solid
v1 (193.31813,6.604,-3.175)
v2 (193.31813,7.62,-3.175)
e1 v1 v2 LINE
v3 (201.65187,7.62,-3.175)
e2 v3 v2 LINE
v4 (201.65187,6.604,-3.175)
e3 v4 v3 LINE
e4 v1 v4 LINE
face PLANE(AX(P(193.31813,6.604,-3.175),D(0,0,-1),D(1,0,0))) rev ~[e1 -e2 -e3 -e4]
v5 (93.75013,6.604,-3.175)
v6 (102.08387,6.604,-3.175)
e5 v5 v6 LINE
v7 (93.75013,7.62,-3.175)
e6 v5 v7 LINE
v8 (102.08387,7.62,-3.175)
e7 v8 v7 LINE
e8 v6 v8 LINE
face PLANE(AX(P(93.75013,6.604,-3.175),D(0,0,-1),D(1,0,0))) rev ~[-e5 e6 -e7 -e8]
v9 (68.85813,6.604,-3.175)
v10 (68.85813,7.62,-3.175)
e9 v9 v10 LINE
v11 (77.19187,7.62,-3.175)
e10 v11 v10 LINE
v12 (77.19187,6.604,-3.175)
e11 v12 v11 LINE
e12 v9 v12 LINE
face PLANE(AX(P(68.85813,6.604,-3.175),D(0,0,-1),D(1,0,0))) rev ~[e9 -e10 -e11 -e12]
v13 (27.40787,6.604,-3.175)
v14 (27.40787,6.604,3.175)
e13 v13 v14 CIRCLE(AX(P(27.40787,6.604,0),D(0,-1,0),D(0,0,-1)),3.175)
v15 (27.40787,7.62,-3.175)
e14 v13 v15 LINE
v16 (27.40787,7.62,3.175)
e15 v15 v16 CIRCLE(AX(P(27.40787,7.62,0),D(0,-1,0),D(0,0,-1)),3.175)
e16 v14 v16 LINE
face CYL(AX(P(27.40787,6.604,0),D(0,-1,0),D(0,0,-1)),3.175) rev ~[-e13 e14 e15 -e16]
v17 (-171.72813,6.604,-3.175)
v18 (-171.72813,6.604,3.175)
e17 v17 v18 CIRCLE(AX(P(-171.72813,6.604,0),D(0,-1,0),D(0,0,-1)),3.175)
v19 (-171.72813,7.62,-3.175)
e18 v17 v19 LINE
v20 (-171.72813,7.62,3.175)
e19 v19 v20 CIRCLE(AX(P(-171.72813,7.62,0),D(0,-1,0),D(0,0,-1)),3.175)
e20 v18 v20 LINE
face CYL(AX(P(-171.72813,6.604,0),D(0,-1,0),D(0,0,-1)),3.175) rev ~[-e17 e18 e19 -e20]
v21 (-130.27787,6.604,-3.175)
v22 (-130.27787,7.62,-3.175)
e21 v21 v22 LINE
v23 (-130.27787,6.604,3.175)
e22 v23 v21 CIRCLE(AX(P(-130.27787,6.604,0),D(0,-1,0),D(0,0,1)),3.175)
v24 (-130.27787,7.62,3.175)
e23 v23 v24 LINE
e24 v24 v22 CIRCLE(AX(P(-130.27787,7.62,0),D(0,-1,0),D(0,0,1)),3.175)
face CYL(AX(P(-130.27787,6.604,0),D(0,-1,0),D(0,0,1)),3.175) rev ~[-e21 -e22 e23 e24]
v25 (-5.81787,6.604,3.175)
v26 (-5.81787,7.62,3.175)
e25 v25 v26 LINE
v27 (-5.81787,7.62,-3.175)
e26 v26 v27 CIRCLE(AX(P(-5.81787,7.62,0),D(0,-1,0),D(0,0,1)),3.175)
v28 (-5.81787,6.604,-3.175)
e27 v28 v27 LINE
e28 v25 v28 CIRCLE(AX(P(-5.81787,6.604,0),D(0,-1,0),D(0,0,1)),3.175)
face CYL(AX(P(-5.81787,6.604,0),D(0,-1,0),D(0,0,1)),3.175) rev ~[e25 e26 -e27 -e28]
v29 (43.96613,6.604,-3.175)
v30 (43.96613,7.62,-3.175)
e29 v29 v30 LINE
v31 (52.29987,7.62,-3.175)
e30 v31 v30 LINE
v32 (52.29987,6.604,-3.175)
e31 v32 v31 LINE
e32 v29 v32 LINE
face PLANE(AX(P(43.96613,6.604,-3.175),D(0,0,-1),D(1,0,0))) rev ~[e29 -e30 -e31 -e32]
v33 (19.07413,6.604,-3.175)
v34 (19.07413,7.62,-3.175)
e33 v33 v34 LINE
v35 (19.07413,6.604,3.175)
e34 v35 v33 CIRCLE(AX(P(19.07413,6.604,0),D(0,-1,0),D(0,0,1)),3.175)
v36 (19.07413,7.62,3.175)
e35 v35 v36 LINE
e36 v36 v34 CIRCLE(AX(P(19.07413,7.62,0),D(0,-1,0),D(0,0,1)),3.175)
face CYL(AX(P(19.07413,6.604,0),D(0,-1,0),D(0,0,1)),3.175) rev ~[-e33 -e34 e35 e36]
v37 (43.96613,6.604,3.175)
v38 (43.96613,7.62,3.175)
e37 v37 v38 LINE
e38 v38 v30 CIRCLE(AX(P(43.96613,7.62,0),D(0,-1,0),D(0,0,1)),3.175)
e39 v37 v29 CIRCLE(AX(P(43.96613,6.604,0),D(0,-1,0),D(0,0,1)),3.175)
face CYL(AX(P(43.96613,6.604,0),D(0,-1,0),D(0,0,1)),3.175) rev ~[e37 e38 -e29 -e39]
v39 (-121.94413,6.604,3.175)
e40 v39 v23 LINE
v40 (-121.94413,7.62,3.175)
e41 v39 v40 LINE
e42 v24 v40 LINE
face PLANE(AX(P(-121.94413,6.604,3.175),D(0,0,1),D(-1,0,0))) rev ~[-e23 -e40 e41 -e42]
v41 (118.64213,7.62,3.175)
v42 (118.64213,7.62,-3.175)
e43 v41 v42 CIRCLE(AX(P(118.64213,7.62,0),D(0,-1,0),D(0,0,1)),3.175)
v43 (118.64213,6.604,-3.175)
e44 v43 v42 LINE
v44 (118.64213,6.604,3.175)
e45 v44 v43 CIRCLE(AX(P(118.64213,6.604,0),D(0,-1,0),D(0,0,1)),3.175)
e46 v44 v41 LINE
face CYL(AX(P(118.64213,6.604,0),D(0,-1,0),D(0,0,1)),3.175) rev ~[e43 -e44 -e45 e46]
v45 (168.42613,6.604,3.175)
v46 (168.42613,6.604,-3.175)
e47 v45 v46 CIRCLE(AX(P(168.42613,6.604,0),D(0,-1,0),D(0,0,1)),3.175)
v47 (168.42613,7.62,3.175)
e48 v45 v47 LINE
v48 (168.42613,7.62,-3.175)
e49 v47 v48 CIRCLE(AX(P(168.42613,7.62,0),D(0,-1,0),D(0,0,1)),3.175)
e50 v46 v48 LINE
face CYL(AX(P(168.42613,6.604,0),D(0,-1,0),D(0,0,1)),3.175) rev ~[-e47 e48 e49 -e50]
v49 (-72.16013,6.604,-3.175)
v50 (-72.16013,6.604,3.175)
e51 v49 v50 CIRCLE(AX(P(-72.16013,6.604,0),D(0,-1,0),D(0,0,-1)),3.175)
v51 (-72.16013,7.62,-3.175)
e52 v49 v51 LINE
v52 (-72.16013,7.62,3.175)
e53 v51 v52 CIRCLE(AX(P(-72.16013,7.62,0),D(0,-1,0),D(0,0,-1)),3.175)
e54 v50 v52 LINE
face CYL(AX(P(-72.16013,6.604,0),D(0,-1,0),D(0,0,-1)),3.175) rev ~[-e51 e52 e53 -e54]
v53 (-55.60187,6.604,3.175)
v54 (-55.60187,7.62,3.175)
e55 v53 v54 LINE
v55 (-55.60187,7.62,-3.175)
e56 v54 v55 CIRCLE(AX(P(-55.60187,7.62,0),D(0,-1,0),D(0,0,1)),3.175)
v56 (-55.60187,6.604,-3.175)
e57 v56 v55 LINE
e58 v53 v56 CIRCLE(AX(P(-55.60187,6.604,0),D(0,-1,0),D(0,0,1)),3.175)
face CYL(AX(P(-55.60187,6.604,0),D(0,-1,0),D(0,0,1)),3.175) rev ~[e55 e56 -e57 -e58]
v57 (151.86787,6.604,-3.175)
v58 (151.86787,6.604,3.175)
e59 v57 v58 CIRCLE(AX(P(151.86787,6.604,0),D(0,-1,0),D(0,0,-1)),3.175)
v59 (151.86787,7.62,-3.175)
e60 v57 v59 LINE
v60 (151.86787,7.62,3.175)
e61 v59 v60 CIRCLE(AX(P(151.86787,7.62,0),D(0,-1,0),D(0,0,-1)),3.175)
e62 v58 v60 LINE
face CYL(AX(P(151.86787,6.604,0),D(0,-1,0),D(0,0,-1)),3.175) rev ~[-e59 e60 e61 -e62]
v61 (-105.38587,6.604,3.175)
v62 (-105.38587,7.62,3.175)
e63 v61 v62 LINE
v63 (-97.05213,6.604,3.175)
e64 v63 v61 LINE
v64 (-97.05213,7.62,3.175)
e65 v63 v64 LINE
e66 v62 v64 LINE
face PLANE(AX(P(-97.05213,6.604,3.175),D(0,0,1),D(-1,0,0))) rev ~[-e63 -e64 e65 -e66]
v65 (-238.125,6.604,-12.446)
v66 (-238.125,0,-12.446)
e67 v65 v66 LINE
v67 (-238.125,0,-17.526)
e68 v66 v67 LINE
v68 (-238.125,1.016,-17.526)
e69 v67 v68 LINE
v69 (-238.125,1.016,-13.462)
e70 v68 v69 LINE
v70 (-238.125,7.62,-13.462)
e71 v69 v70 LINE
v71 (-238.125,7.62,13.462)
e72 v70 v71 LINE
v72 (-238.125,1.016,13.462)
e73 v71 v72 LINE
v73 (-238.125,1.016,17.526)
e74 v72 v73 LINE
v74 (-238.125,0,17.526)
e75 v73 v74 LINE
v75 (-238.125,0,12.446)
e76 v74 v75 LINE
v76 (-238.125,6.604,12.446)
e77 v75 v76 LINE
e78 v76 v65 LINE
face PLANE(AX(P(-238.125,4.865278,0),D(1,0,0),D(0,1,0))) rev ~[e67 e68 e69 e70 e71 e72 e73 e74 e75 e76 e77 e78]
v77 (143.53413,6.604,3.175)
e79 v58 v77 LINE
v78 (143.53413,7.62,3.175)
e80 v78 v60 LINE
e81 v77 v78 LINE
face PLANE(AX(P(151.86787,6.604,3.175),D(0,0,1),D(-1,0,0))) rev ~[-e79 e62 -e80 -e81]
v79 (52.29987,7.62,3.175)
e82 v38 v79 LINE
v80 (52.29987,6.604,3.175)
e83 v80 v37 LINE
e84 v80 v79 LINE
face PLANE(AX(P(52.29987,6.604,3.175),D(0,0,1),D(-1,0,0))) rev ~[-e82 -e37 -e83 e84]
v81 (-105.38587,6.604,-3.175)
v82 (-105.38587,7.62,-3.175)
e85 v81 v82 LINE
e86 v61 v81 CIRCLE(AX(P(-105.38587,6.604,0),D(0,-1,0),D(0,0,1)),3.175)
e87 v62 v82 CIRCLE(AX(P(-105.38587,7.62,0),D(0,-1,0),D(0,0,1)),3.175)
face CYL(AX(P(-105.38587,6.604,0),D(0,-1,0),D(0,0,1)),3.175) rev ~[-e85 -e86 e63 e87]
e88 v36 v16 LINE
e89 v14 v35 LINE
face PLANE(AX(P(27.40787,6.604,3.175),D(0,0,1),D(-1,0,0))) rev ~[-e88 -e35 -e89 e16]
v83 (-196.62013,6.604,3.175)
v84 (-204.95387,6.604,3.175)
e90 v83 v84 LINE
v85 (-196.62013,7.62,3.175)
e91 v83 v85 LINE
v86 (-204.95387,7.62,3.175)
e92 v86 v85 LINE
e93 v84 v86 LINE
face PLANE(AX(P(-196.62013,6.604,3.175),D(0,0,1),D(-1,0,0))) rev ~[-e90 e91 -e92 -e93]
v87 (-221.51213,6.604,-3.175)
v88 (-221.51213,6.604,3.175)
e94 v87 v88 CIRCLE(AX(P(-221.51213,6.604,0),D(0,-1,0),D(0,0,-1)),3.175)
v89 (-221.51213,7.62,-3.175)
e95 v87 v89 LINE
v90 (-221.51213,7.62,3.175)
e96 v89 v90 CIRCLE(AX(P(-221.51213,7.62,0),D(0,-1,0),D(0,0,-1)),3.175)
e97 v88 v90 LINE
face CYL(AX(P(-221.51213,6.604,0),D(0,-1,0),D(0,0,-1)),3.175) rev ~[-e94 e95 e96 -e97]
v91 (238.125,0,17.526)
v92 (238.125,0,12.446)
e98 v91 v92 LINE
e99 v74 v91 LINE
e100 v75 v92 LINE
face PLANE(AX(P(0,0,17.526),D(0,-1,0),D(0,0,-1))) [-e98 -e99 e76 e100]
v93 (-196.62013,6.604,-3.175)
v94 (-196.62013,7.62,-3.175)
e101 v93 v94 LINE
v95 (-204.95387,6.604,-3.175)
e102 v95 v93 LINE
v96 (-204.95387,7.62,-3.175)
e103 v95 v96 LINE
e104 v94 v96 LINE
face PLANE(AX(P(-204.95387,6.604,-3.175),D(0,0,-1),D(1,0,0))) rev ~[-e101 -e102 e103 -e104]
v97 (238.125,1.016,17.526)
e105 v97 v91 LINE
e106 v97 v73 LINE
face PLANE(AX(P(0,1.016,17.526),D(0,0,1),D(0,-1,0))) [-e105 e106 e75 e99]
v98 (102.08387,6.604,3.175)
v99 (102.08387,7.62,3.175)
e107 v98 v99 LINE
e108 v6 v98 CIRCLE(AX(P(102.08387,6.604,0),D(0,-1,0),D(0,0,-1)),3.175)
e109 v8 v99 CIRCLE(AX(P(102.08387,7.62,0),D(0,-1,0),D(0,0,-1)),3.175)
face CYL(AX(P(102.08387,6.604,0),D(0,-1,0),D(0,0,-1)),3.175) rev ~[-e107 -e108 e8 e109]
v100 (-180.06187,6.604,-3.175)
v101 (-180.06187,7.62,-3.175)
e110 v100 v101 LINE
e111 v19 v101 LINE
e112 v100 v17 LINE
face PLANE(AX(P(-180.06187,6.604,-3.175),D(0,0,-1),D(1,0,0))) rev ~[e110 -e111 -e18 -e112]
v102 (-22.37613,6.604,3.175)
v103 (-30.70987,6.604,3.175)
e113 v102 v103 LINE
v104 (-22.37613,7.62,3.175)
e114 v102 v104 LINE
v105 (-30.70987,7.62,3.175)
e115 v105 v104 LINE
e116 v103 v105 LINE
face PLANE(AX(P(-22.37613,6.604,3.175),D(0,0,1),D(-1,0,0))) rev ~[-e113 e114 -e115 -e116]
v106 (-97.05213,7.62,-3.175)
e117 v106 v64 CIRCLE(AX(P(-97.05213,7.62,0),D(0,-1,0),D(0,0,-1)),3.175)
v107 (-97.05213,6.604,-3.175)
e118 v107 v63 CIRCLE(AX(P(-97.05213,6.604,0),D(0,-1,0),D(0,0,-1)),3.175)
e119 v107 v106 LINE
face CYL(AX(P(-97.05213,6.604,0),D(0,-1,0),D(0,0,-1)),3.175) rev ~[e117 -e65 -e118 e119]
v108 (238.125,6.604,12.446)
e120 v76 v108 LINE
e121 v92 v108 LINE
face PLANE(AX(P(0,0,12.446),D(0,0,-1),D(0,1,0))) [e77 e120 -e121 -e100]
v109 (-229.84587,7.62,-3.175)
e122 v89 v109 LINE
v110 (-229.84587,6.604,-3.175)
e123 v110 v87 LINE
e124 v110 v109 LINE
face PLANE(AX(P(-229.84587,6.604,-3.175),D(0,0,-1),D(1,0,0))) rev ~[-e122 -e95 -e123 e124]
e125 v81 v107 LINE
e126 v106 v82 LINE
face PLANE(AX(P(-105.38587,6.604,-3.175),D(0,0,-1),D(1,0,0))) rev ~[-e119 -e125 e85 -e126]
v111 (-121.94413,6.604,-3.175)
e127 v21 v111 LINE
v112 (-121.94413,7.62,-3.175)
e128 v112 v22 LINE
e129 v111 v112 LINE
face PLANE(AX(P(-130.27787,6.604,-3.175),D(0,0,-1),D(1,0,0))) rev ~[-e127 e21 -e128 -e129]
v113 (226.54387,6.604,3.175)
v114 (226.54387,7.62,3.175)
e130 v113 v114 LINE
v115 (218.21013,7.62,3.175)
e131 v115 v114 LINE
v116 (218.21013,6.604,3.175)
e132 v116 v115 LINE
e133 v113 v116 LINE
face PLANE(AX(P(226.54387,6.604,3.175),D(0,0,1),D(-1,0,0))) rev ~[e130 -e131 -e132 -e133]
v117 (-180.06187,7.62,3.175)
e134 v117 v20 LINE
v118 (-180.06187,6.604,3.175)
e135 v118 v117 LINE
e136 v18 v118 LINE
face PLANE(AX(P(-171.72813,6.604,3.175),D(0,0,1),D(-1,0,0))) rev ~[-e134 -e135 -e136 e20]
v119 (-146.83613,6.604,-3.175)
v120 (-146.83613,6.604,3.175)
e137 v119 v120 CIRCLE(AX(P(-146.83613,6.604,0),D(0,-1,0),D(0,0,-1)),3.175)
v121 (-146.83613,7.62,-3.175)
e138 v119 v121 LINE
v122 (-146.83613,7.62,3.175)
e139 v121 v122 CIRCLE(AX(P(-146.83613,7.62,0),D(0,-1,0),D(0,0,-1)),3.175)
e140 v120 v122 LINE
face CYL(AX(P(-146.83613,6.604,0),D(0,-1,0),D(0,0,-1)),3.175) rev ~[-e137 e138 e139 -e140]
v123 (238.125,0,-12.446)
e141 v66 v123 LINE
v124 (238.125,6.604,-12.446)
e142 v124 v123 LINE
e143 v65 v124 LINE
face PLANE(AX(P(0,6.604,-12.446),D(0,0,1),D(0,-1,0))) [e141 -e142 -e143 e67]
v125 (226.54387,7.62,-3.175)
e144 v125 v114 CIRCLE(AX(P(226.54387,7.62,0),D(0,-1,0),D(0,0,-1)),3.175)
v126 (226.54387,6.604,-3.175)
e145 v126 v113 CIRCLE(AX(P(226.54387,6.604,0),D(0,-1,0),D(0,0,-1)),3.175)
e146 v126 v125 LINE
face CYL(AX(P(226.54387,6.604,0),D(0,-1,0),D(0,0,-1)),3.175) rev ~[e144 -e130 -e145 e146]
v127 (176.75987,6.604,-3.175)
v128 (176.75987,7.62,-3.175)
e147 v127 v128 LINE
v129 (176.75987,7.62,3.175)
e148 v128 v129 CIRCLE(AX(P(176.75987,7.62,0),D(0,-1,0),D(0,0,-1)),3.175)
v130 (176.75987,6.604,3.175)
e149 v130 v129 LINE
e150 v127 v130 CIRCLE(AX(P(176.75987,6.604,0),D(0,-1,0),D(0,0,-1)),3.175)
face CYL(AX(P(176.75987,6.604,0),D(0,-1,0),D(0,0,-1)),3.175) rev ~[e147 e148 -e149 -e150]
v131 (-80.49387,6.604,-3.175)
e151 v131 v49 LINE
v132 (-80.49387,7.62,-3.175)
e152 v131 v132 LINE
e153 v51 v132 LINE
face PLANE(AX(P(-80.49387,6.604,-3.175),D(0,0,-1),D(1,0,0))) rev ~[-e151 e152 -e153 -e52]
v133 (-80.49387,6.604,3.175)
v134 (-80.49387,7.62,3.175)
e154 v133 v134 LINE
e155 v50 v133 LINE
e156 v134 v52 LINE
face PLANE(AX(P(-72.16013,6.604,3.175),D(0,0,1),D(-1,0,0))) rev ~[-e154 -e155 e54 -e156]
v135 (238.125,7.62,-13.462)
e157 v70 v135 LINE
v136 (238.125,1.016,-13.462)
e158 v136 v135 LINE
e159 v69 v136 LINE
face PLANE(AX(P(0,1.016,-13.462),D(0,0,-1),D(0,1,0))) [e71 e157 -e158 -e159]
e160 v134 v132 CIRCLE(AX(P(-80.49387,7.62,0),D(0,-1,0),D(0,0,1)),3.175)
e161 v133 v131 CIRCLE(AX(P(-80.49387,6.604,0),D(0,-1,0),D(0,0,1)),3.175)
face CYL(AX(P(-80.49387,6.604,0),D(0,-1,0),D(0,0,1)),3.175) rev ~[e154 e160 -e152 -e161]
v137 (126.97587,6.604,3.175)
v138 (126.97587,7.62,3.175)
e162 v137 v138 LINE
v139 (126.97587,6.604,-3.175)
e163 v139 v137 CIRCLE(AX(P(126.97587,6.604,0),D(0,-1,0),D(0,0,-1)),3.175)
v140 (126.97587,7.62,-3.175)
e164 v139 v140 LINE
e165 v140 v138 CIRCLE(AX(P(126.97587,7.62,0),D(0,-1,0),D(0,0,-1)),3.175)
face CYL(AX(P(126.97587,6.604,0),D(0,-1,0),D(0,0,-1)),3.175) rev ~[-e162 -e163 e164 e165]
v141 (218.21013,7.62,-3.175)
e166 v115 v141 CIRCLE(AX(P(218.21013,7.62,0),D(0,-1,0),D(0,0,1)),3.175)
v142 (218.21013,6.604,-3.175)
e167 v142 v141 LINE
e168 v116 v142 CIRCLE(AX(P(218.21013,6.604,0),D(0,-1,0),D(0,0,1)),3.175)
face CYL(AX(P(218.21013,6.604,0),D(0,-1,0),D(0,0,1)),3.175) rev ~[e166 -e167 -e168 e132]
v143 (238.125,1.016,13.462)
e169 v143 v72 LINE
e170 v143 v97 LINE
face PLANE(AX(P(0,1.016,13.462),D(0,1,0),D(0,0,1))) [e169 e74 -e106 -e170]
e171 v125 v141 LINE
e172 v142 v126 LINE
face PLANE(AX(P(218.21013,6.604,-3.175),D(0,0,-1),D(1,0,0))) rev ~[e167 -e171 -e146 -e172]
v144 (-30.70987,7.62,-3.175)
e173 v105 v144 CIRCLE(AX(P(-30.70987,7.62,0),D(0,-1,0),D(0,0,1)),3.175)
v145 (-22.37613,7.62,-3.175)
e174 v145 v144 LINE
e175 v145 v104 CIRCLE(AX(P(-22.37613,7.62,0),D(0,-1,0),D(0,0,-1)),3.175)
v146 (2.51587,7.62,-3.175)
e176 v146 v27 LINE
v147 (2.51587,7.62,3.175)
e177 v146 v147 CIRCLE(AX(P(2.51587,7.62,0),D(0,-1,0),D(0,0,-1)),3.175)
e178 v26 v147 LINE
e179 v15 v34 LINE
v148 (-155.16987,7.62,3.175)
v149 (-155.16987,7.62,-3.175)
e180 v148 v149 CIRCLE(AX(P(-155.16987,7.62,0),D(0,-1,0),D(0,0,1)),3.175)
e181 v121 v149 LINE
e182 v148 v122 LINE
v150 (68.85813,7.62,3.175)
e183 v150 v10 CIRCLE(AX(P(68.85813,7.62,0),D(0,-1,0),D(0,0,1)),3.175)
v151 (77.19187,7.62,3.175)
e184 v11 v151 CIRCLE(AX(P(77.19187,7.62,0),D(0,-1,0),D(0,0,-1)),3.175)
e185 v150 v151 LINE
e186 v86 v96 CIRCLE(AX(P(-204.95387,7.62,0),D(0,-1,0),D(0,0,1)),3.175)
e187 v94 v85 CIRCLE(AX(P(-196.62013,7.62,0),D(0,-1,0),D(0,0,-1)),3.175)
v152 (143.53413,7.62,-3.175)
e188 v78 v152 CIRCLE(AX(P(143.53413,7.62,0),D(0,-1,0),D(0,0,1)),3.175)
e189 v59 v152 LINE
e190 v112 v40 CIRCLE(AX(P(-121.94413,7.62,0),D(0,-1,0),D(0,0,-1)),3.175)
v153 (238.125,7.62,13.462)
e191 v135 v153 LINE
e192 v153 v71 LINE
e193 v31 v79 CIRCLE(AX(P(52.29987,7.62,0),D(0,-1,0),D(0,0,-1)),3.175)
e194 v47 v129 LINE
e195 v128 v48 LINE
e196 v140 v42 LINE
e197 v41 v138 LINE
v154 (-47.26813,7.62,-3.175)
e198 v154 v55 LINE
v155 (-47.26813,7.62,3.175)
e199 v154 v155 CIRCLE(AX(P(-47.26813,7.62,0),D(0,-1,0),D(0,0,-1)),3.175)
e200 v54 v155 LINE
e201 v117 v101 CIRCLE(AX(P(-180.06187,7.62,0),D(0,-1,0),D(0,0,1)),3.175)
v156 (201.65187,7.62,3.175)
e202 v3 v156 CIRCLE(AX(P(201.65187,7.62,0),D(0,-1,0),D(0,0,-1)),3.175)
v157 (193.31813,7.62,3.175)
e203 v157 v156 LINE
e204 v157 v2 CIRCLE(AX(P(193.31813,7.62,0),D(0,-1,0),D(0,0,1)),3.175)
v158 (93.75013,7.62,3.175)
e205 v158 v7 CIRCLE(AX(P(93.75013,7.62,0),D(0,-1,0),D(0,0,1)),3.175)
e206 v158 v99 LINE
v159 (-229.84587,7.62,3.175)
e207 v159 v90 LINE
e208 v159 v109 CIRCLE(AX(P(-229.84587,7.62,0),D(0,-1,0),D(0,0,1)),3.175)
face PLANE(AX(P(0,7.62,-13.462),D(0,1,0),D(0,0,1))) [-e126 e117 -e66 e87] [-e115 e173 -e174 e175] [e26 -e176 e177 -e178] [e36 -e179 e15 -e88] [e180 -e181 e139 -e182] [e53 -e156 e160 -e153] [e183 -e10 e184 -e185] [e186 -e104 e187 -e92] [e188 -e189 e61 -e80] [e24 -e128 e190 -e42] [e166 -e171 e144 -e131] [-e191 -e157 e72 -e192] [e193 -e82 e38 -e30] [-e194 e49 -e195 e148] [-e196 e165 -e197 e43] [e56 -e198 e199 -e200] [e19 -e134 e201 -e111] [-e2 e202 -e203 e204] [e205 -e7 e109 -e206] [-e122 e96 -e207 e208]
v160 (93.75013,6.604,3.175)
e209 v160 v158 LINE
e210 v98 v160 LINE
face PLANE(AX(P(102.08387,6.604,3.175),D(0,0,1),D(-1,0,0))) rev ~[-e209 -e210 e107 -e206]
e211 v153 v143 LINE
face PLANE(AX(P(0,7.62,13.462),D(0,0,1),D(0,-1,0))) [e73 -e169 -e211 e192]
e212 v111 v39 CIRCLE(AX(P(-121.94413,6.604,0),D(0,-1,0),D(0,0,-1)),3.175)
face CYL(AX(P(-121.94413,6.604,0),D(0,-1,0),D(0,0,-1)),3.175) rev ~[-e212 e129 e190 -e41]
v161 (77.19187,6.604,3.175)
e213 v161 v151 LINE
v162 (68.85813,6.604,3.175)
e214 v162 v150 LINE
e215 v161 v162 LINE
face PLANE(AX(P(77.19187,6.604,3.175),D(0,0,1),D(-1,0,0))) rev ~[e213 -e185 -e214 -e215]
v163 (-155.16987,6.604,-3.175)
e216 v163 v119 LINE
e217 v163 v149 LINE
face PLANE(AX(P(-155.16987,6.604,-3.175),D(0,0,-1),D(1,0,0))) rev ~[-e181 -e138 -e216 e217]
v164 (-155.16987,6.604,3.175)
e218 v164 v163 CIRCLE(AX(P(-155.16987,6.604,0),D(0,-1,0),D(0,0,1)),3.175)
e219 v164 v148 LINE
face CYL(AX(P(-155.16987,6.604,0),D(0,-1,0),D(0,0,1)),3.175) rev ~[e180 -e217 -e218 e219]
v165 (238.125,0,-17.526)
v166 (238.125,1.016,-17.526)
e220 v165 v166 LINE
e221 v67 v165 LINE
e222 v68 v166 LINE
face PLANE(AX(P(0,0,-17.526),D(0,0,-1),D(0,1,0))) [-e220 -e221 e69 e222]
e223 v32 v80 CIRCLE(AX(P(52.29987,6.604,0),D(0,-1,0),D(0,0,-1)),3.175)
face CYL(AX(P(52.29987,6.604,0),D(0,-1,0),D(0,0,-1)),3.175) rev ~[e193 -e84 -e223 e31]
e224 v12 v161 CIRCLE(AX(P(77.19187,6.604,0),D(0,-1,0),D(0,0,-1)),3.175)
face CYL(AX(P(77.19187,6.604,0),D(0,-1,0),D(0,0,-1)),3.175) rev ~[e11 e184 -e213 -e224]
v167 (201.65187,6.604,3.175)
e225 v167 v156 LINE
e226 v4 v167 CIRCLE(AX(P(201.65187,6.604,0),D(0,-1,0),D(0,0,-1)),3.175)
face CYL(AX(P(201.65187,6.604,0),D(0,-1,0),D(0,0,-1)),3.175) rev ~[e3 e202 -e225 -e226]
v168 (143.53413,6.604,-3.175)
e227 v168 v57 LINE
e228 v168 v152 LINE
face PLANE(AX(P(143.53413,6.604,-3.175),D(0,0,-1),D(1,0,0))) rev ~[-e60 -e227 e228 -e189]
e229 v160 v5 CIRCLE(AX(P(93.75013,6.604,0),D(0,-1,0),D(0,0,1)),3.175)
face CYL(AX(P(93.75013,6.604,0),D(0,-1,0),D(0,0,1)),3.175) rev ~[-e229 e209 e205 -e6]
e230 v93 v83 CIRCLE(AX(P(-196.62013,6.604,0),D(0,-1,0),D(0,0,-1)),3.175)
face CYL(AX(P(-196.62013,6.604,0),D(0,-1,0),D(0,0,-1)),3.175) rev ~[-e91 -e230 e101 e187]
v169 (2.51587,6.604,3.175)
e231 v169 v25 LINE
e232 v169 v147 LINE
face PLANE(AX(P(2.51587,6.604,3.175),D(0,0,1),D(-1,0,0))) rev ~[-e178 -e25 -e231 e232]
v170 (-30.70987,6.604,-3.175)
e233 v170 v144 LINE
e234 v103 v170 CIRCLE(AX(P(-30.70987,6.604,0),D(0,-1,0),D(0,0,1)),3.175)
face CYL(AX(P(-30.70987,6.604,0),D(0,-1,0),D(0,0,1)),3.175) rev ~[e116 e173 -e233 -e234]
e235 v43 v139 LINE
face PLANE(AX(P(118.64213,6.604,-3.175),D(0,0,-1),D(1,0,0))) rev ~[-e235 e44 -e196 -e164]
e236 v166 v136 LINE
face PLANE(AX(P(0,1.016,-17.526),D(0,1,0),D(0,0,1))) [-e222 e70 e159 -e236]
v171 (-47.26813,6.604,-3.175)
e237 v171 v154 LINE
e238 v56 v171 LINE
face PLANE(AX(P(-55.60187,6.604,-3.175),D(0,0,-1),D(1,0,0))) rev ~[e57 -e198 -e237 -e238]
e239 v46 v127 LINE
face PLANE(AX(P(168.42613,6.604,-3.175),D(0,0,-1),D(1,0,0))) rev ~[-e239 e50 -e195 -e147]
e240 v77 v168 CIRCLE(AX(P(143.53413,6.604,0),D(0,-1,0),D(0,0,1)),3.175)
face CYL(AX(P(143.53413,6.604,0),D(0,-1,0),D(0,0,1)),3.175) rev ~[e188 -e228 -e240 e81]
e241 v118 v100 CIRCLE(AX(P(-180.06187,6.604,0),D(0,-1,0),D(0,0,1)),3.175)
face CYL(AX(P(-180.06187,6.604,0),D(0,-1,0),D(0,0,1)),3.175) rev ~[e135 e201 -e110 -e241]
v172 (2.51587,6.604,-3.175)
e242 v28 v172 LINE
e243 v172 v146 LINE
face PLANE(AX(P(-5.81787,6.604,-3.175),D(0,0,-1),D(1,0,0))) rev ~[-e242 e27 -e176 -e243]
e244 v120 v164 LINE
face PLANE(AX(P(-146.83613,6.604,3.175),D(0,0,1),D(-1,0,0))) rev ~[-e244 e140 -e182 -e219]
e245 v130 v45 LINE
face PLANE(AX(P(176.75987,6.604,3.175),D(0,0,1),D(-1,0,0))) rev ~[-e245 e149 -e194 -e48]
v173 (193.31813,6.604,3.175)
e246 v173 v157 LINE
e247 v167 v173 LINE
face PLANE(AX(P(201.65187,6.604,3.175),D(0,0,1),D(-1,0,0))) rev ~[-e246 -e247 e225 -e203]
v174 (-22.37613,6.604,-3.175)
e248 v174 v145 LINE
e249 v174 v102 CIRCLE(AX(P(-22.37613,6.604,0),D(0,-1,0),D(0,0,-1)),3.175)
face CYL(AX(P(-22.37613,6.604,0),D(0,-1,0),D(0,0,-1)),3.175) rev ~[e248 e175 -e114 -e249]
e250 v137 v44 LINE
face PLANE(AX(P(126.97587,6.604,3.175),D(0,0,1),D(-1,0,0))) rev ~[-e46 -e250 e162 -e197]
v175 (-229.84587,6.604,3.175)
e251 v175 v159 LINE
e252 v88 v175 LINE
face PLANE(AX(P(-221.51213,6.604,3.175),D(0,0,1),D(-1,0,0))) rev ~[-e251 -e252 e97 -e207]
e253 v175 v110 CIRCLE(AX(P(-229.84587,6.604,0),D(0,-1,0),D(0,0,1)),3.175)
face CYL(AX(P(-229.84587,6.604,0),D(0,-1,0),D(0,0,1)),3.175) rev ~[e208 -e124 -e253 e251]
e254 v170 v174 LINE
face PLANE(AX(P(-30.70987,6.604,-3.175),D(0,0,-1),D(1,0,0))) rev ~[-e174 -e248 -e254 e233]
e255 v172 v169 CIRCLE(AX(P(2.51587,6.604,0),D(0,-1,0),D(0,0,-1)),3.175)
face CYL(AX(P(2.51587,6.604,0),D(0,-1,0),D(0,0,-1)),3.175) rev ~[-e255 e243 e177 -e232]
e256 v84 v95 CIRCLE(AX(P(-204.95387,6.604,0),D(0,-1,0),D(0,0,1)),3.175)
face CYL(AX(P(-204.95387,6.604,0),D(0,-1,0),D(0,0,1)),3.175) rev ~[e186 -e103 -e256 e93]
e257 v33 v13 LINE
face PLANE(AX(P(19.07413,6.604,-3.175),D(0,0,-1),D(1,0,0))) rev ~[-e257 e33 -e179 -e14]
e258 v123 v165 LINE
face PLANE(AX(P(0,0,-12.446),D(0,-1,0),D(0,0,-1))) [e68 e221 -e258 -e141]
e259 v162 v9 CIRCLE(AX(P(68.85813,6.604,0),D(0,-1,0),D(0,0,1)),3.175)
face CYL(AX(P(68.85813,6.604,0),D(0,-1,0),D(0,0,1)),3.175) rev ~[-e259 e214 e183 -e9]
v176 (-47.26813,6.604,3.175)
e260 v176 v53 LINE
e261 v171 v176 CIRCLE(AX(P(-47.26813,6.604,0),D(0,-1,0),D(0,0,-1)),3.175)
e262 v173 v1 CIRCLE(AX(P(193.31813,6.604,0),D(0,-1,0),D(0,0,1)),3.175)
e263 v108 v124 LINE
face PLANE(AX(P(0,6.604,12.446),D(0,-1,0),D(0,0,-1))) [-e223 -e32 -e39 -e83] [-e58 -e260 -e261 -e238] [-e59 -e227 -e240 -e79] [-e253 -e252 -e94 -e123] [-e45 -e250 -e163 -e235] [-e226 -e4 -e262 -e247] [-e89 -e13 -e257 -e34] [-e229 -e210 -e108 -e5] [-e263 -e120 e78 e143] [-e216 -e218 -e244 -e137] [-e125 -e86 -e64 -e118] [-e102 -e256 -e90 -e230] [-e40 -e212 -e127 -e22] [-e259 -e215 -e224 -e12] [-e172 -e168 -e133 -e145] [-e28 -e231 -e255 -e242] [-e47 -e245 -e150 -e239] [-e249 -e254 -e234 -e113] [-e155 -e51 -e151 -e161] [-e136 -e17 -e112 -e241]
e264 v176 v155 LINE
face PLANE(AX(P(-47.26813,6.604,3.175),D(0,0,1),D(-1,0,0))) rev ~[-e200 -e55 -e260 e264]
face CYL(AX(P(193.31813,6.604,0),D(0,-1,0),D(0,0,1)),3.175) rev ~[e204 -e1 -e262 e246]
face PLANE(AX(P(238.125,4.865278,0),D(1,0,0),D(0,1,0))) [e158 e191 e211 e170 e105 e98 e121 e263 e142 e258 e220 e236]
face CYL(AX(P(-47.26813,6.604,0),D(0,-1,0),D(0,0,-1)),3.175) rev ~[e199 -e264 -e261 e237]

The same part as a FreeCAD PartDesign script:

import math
import FreeCAD as App
import Part
import Sketcher

V = App.Vector
Q = App.Units.Quantity

doc = App.newDocument("Part")
body = doc.addObject("PartDesign::Body", "Body")

# Sketch on YZ plane
sketch1 = body.newObject("Sketcher::SketchObject", "Sketch")
sketch1.AttachmentSupport = (doc.getObject("YZ_Plane"), [""])
sketch1.MapMode = "FlatFace"
sketch1.addGeometry([
    Part.LineSegment(V(1, 17.5, 0), V(0, 17.5, 0)),  # 0
    Part.LineSegment(V(0, 17.5, 0), V(0, 12.4, 0)),  # 1
    Part.LineSegment(V(0, 12.4, 0), V(6.6, 12.4, 0)),  # 2
    Part.LineSegment(V(6.6, 12.4, 0), V(6.6, -12.4, 0)),  # 3
    Part.LineSegment(V(6.6, -12.4, 0), V(0, -12.4, 0)),  # 4
    Part.LineSegment(V(0, -12.4, 0), V(0, -17.5, 0)),  # 5
    Part.LineSegment(V(0, -17.5, 0), V(1, -17.5, 0)),  # 6
    Part.LineSegment(V(1, -17.5, 0), V(1, -13.5, 0)),  # 7
    Part.LineSegment(V(1, -13.5, 0), V(7.6, -13.5, 0)),  # 8
    Part.LineSegment(V(7.6, -13.5, 0), V(7.6, 13.5, 0)),  # 9
    Part.LineSegment(V(7.6, 13.5, 0), V(1, 13.5, 0)),  # 10
    Part.LineSegment(V(1, 13.5, 0), V(1, 17.5, 0)),  # 11
], False)
sketch1.addConstraint([
    Sketcher.Constraint("Coincident", 0, 2, 1, 1),
    Sketcher.Constraint("Coincident", 1, 2, 2, 1),
    Sketcher.Constraint("Coincident", 2, 2, 3, 1),
    Sketcher.Constraint("Coincident", 3, 2, 4, 1),
    Sketcher.Constraint("Coincident", 4, 2, 5, 1),
    Sketcher.Constraint("Coincident", 5, 2, 6, 1),
    Sketcher.Constraint("Coincident", 6, 2, 7, 1),
    Sketcher.Constraint("Coincident", 7, 2, 8, 1),
    Sketcher.Constraint("Coincident", 8, 2, 9, 1),
    Sketcher.Constraint("Coincident", 9, 2, 10, 1),
    Sketcher.Constraint("Coincident", 10, 2, 11, 1),
    Sketcher.Constraint("Coincident", 11, 2, 0, 1),
    Sketcher.Constraint("Horizontal", 0),
    Sketcher.Constraint("Vertical", 1),
    Sketcher.Constraint("Horizontal", 2),
    Sketcher.Constraint("Vertical", 3),
    Sketcher.Constraint("Horizontal", 4),
    Sketcher.Constraint("Vertical", 5),
    Sketcher.Constraint("Horizontal", 6),
    Sketcher.Constraint("Vertical", 7),
    Sketcher.Constraint("Horizontal", 8),
    Sketcher.Constraint("Vertical", 9),
    Sketcher.Constraint("Horizontal", 10),
    Sketcher.Constraint("Vertical", 11),
    Sketcher.Constraint("Symmetric", 1, 2, 4, 2, -1, 1),
    Sketcher.Constraint("Symmetric", 0, 2, 5, 2, -1),
    Sketcher.Constraint("Symmetric", 7, 2, 10, 2, -1),
    Sketcher.Constraint("Equal", 4, 8),
    Sketcher.Constraint("DistanceY", 1, 2, 1, 1, Q("0.2 in")),
    Sketcher.Constraint("DistanceX", 0, 2, 0, 1, Q("0.04 in")),
    Sketcher.Constraint("DistanceX", 2, 1, 2, 2, Q("0.26 in")),
    Sketcher.Constraint("DistanceY", 3, 2, 3, 1, Q("0.98 in")),
    Sketcher.Constraint("DistanceY", 7, 1, 7, 2, Q("0.16 in")),
])
pad1 = body.newObject("PartDesign::Pad", "Pad")
pad1.Profile = sketch1
pad1.Length = Q("18.75 in")
pad1.Midplane = True

# Sketch on XZ plane
sketch2 = body.newObject("Sketcher::SketchObject", "Sketch001")
sketch2.AttachmentSupport = (doc.getObject("XZ_Plane"), [""])
sketch2.MapMode = "FlatFace"
sketch2.AttachmentOffset = App.Placement(V(0, 0, -0.26 * 25.4), App.Rotation())
sketch2.addGeometry([
    Part.LineSegment(V(-196.6, 3.2, 0), V(-205, 3.2, 0)),  # 0
    Part.ArcOfCircle(Part.Circle(V(-205, 0, 0), V(0, 0, 1), 3.2), math.radians(90), math.radians(270)),  # 1
    Part.LineSegment(V(-205, -3.2, 0), V(-196.6, -3.2, 0)),  # 2
    Part.ArcOfCircle(Part.Circle(V(-196.6, 0, 0), V(0, 0, 1), 3.2), math.radians(-90), math.radians(90)),  # 3
    Part.ArcOfCircle(Part.Circle(V(-229.8, 0, 0), V(0, 0, 1), 3.2), math.radians(90), math.radians(270)),  # 4
    Part.LineSegment(V(-229.8, -3.2, 0), V(-221.5, -3.2, 0)),  # 5
    Part.ArcOfCircle(Part.Circle(V(-221.5, 0, 0), V(0, 0, 1), 3.2), math.radians(-90), math.radians(90)),  # 6
    Part.LineSegment(V(-221.5, 3.2, 0), V(-229.8, 3.2, 0)),  # 7
    Part.LineSegment(V(-171.7, 3.2, 0), V(-180.1, 3.2, 0)),  # 8
    Part.ArcOfCircle(Part.Circle(V(-180.1, 0, 0), V(0, 0, 1), 3.2), math.radians(90), math.radians(270)),  # 9
    Part.LineSegment(V(-180.1, -3.2, 0), V(-171.7, -3.2, 0)),  # 10
    Part.ArcOfCircle(Part.Circle(V(-171.7, 0, 0), V(0, 0, 1), 3.2), math.radians(-90), math.radians(90)),  # 11
    Part.LineSegment(V(-146.8, 3.2, 0), V(-155.2, 3.2, 0)),  # 12
    Part.ArcOfCircle(Part.Circle(V(-155.2, 0, 0), V(0, 0, 1), 3.2), math.radians(90), math.radians(270)),  # 13
    Part.LineSegment(V(-155.2, -3.2, 0), V(-146.8, -3.2, 0)),  # 14
    Part.ArcOfCircle(Part.Circle(V(-146.8, 0, 0), V(0, 0, 1), 3.2), math.radians(-90), math.radians(90)),  # 15
    Part.LineSegment(V(-121.9, 3.2, 0), V(-130.3, 3.2, 0)),  # 16
    Part.ArcOfCircle(Part.Circle(V(-130.3, 0, 0), V(0, 0, 1), 3.2), math.radians(90), math.radians(270)),  # 17
    Part.LineSegment(V(-130.3, -3.2, 0), V(-121.9, -3.2, 0)),  # 18
    Part.ArcOfCircle(Part.Circle(V(-121.9, 0, 0), V(0, 0, 1), 3.2), math.radians(-90), math.radians(90)),  # 19
    Part.LineSegment(V(-97.1, 3.2, 0), V(-105.4, 3.2, 0)),  # 20
    Part.ArcOfCircle(Part.Circle(V(-105.4, 0, 0), V(0, 0, 1), 3.2), math.radians(90), math.radians(270)),  # 21
    Part.LineSegment(V(-105.4, -3.2, 0), V(-97.1, -3.2, 0)),  # 22
    Part.ArcOfCircle(Part.Circle(V(-97.1, 0, 0), V(0, 0, 1), 3.2), math.radians(-90), math.radians(90)),  # 23
    Part.LineSegment(V(-72.2, 3.2, 0), V(-80.5, 3.2, 0)),  # 24
    Part.ArcOfCircle(Part.Circle(V(-80.5, 0, 0), V(0, 0, 1), 3.2), math.radians(90), math.radians(270)),  # 25
    Part.LineSegment(V(-80.5, -3.2, 0), V(-72.2, -3.2, 0)),  # 26
    Part.ArcOfCircle(Part.Circle(V(-72.2, 0, 0), V(0, 0, 1), 3.2), math.radians(-90), math.radians(90)),  # 27
    Part.LineSegment(V(-47.3, 3.2, 0), V(-55.6, 3.2, 0)),  # 28
    Part.ArcOfCircle(Part.Circle(V(-55.6, 0, 0), V(0, 0, 1), 3.2), math.radians(90), math.radians(270)),  # 29
    Part.LineSegment(V(-55.6, -3.2, 0), V(-47.3, -3.2, 0)),  # 30
    Part.ArcOfCircle(Part.Circle(V(-47.3, 0, 0), V(0, 0, 1), 3.2), math.radians(-90), math.radians(90)),  # 31
    Part.LineSegment(V(-22.4, 3.2, 0), V(-30.7, 3.2, 0)),  # 32
    Part.ArcOfCircle(Part.Circle(V(-30.7, 0, 0), V(0, 0, 1), 3.2), math.radians(90), math.radians(270)),  # 33
    Part.LineSegment(V(-30.7, -3.2, 0), V(-22.4, -3.2, 0)),  # 34
    Part.ArcOfCircle(Part.Circle(V(-22.4, 0, 0), V(0, 0, 1), 3.2), math.radians(-90), math.radians(90)),  # 35
    Part.LineSegment(V(2.5, 3.2, 0), V(-5.8, 3.2, 0)),  # 36
    Part.ArcOfCircle(Part.Circle(V(-5.8, 0, 0), V(0, 0, 1), 3.2), math.radians(90), math.radians(270)),  # 37
    Part.LineSegment(V(-5.8, -3.2, 0), V(2.5, -3.2, 0)),  # 38
    Part.ArcOfCircle(Part.Circle(V(2.5, 0, 0), V(0, 0, 1), 3.2), math.radians(-90), math.radians(90)),  # 39
    Part.LineSegment(V(27.4, 3.2, 0), V(19.1, 3.2, 0)),  # 40
    Part.ArcOfCircle(Part.Circle(V(19.1, 0, 0), V(0, 0, 1), 3.2), math.radians(90), math.radians(270)),  # 41
    Part.LineSegment(V(19.1, -3.2, 0), V(27.4, -3.2, 0)),  # 42
    Part.ArcOfCircle(Part.Circle(V(27.4, 0, 0), V(0, 0, 1), 3.2), math.radians(-90), math.radians(90)),  # 43
    Part.LineSegment(V(52.3, 3.2, 0), V(44, 3.2, 0)),  # 44
    Part.ArcOfCircle(Part.Circle(V(44, 0, 0), V(0, 0, 1), 3.2), math.radians(90), math.radians(270)),  # 45
    Part.LineSegment(V(44, -3.2, 0), V(52.3, -3.2, 0)),  # 46
    Part.ArcOfCircle(Part.Circle(V(52.3, 0, 0), V(0, 0, 1), 3.2), math.radians(-90), math.radians(90)),  # 47
    Part.LineSegment(V(77.2, 3.2, 0), V(68.9, 3.2, 0)),  # 48
    Part.ArcOfCircle(Part.Circle(V(68.9, 0, 0), V(0, 0, 1), 3.2), math.radians(90), math.radians(270)),  # 49
    Part.LineSegment(V(68.9, -3.2, 0), V(77.2, -3.2, 0)),  # 50
    Part.ArcOfCircle(Part.Circle(V(77.2, 0, 0), V(0, 0, 1), 3.2), math.radians(-90), math.radians(90)),  # 51
    Part.LineSegment(V(102.1, 3.2, 0), V(93.8, 3.2, 0)),  # 52
    Part.ArcOfCircle(Part.Circle(V(93.8, 0, 0), V(0, 0, 1), 3.2), math.radians(90), math.radians(270)),  # 53
    Part.LineSegment(V(93.8, -3.2, 0), V(102.1, -3.2, 0)),  # 54
    Part.ArcOfCircle(Part.Circle(V(102.1, 0, 0), V(0, 0, 1), 3.2), math.radians(-90), math.radians(90)),  # 55
    Part.LineSegment(V(127, 3.2, 0), V(118.6, 3.2, 0)),  # 56
    Part.ArcOfCircle(Part.Circle(V(118.6, 0, 0), V(0, 0, 1), 3.2), math.radians(90), math.radians(270)),  # 57
    Part.LineSegment(V(118.6, -3.2, 0), V(127, -3.2, 0)),  # 58
    Part.ArcOfCircle(Part.Circle(V(127, 0, 0), V(0, 0, 1), 3.2), math.radians(-90), math.radians(90)),  # 59
    Part.LineSegment(V(151.9, 3.2, 0), V(143.5, 3.2, 0)),  # 60
    Part.ArcOfCircle(Part.Circle(V(143.5, 0, 0), V(0, 0, 1), 3.2), math.radians(90), math.radians(270)),  # 61
    Part.LineSegment(V(143.5, -3.2, 0), V(151.9, -3.2, 0)),  # 62
    Part.ArcOfCircle(Part.Circle(V(151.9, 0, 0), V(0, 0, 1), 3.2), math.radians(-90), math.radians(90)),  # 63
    Part.LineSegment(V(176.8, 3.2, 0), V(168.4, 3.2, 0)),  # 64
    Part.ArcOfCircle(Part.Circle(V(168.4, 0, 0), V(0, 0, 1), 3.2), math.radians(90), math.radians(270)),  # 65
    Part.LineSegment(V(168.4, -3.2, 0), V(176.8, -3.2, 0)),  # 66
    Part.ArcOfCircle(Part.Circle(V(176.8, 0, 0), V(0, 0, 1), 3.2), math.radians(-90), math.radians(90)),  # 67
    Part.LineSegment(V(201.7, 3.2, 0), V(193.3, 3.2, 0)),  # 68
    Part.ArcOfCircle(Part.Circle(V(193.3, 0, 0), V(0, 0, 1), 3.2), math.radians(90), math.radians(270)),  # 69
    Part.LineSegment(V(193.3, -3.2, 0), V(201.7, -3.2, 0)),  # 70
    Part.ArcOfCircle(Part.Circle(V(201.7, 0, 0), V(0, 0, 1), 3.2), math.radians(-90), math.radians(90)),  # 71
    Part.LineSegment(V(226.5, 3.2, 0), V(218.2, 3.2, 0)),  # 72
    Part.ArcOfCircle(Part.Circle(V(218.2, 0, 0), V(0, 0, 1), 3.2), math.radians(90), math.radians(270)),  # 73
    Part.LineSegment(V(218.2, -3.2, 0), V(226.5, -3.2, 0)),  # 74
    Part.ArcOfCircle(Part.Circle(V(226.5, 0, 0), V(0, 0, 1), 3.2), math.radians(-90), math.radians(90)),  # 75
    Part.LineSegment(V(251.4, 3.2, 0), V(243.1, 3.2, 0)),  # 76
    Part.ArcOfCircle(Part.Circle(V(243.1, 0, 0), V(0, 0, 1), 3.2), math.radians(90), math.radians(270)),  # 77
    Part.LineSegment(V(243.1, -3.2, 0), V(251.4, -3.2, 0)),  # 78
    Part.ArcOfCircle(Part.Circle(V(251.4, 0, 0), V(0, 0, 1), 3.2), math.radians(-90), math.radians(90)),  # 79
], False)
sketch2.addConstraint([
    Sketcher.Constraint("Tangent", 0, 2, 1, 1),
    Sketcher.Constraint("Tangent", 1, 2, 2, 1),
    Sketcher.Constraint("Tangent", 2, 2, 3, 1),
    Sketcher.Constraint("Tangent", 3, 2, 0, 1),
    Sketcher.Constraint("Tangent", 4, 2, 5, 1),
    Sketcher.Constraint("Tangent", 5, 2, 6, 1),
    Sketcher.Constraint("Tangent", 6, 2, 7, 1),
    Sketcher.Constraint("Tangent", 7, 2, 4, 1),
    Sketcher.Constraint("Tangent", 8, 2, 9, 1),
    Sketcher.Constraint("Tangent", 9, 2, 10, 1),
    Sketcher.Constraint("Tangent", 10, 2, 11, 1),
    Sketcher.Constraint("Tangent", 11, 2, 8, 1),
    Sketcher.Constraint("Tangent", 12, 2, 13, 1),
    Sketcher.Constraint("Tangent", 13, 2, 14, 1),
    Sketcher.Constraint("Tangent", 14, 2, 15, 1),
    Sketcher.Constraint("Tangent", 15, 2, 12, 1),
    Sketcher.Constraint("Tangent", 16, 2, 17, 1),
    Sketcher.Constraint("Tangent", 17, 2, 18, 1),
    Sketcher.Constraint("Tangent", 18, 2, 19, 1),
    Sketcher.Constraint("Tangent", 19, 2, 16, 1),
    Sketcher.Constraint("Tangent", 20, 2, 21, 1),
    Sketcher.Constraint("Tangent", 21, 2, 22, 1),
    Sketcher.Constraint("Tangent", 22, 2, 23, 1),
    Sketcher.Constraint("Tangent", 23, 2, 20, 1),
    Sketcher.Constraint("Tangent", 24, 2, 25, 1),
    Sketcher.Constraint("Tangent", 25, 2, 26, 1),
    Sketcher.Constraint("Tangent", 26, 2, 27, 1),
    Sketcher.Constraint("Tangent", 27, 2, 24, 1),
    Sketcher.Constraint("Tangent", 28, 2, 29, 1),
    Sketcher.Constraint("Tangent", 29, 2, 30, 1),
    Sketcher.Constraint("Tangent", 30, 2, 31, 1),
    Sketcher.Constraint("Tangent", 31, 2, 28, 1),
    Sketcher.Constraint("Tangent", 32, 2, 33, 1),
    Sketcher.Constraint("Tangent", 33, 2, 34, 1),
    Sketcher.Constraint("Tangent", 34, 2, 35, 1),
    Sketcher.Constraint("Tangent", 35, 2, 32, 1),
    Sketcher.Constraint("Tangent", 36, 2, 37, 1),
    Sketcher.Constraint("Tangent", 37, 2, 38, 1),
    Sketcher.Constraint("Tangent", 38, 2, 39, 1),
    Sketcher.Constraint("Tangent", 39, 2, 36, 1),
    Sketcher.Constraint("Tangent", 40, 2, 41, 1),
    Sketcher.Constraint("Tangent", 41, 2, 42, 1),
    Sketcher.Constraint("Tangent", 42, 2, 43, 1),
    Sketcher.Constraint("Tangent", 43, 2, 40, 1),
    Sketcher.Constraint("Tangent", 44, 2, 45, 1),
    Sketcher.Constraint("Tangent", 45, 2, 46, 1),
    Sketcher.Constraint("Tangent", 46, 2, 47, 1),
    Sketcher.Constraint("Tangent", 47, 2, 44, 1),
    Sketcher.Constraint("Tangent", 48, 2, 49, 1),
    Sketcher.Constraint("Tangent", 49, 2, 50, 1),
    Sketcher.Constraint("Tangent", 50, 2, 51, 1),
    Sketcher.Constraint("Tangent", 51, 2, 48, 1),
    Sketcher.Constraint("Tangent", 52, 2, 53, 1),
    Sketcher.Constraint("Tangent", 53, 2, 54, 1),
    Sketcher.Constraint("Tangent", 54, 2, 55, 1),
    Sketcher.Constraint("Tangent", 55, 2, 52, 1),
    Sketcher.Constraint("Tangent", 56, 2, 57, 1),
    Sketcher.Constraint("Tangent", 57, 2, 58, 1),
    Sketcher.Constraint("Tangent", 58, 2, 59, 1),
    Sketcher.Constraint("Tangent", 59, 2, 56, 1),
    Sketcher.Constraint("Tangent", 60, 2, 61, 1),
    Sketcher.Constraint("Tangent", 61, 2, 62, 1),
    Sketcher.Constraint("Tangent", 62, 2, 63, 1),
    Sketcher.Constraint("Tangent", 63, 2, 60, 1),
    Sketcher.Constraint("Tangent", 64, 2, 65, 1),
    Sketcher.Constraint("Tangent", 65, 2, 66, 1),
    Sketcher.Constraint("Tangent", 66, 2, 67, 1),
    Sketcher.Constraint("Tangent", 67, 2, 64, 1),
    Sketcher.Constraint("Tangent", 68, 2, 69, 1),
    Sketcher.Constraint("Tangent", 69, 2, 70, 1),
    Sketcher.Constraint("Tangent", 70, 2, 71, 1),
    Sketcher.Constraint("Tangent", 71, 2, 68, 1),
    Sketcher.Constraint("Tangent", 72, 2, 73, 1),
    Sketcher.Constraint("Tangent", 73, 2, 74, 1),
    Sketcher.Constraint("Tangent", 74, 2, 75, 1),
    Sketcher.Constraint("Tangent", 75, 2, 72, 1),
    Sketcher.Constraint("Tangent", 76, 2, 77, 1),
    Sketcher.Constraint("Tangent", 77, 2, 78, 1),
    Sketcher.Constraint("Tangent", 78, 2, 79, 1),
    Sketcher.Constraint("Tangent", 79, 2, 76, 1),
    Sketcher.Constraint("Horizontal", 0),
    Sketcher.Constraint("Horizontal", 2),
    Sketcher.Constraint("Horizontal", 5),
    Sketcher.Constraint("Horizontal", 7),
    Sketcher.Constraint("Horizontal", 8),
    Sketcher.Constraint("Horizontal", 10),
    Sketcher.Constraint("Horizontal", 12),
    Sketcher.Constraint("Horizontal", 14),
    Sketcher.Constraint("Horizontal", 16),
    Sketcher.Constraint("Horizontal", 18),
    Sketcher.Constraint("Horizontal", 20),
    Sketcher.Constraint("Horizontal", 22),
    Sketcher.Constraint("Horizontal", 24),
    Sketcher.Constraint("Horizontal", 26),
    Sketcher.Constraint("Horizontal", 28),
    Sketcher.Constraint("Horizontal", 30),
    Sketcher.Constraint("Horizontal", 32),
    Sketcher.Constraint("Horizontal", 34),
    Sketcher.Constraint("Horizontal", 36),
    Sketcher.Constraint("Horizontal", 38),
    Sketcher.Constraint("Horizontal", 40),
    Sketcher.Constraint("Horizontal", 42),
    Sketcher.Constraint("Horizontal", 44),
    Sketcher.Constraint("Horizontal", 46),
    Sketcher.Constraint("Horizontal", 48),
    Sketcher.Constraint("Horizontal", 50),
    Sketcher.Constraint("Horizontal", 52),
    Sketcher.Constraint("Horizontal", 54),
    Sketcher.Constraint("Horizontal", 56),
    Sketcher.Constraint("Horizontal", 58),
    Sketcher.Constraint("Horizontal", 60),
    Sketcher.Constraint("Horizontal", 62),
    Sketcher.Constraint("Horizontal", 64),
    Sketcher.Constraint("Horizontal", 66),
    Sketcher.Constraint("Horizontal", 68),
    Sketcher.Constraint("Horizontal", 70),
    Sketcher.Constraint("Horizontal", 72),
    Sketcher.Constraint("Horizontal", 74),
    Sketcher.Constraint("Horizontal", 76),
    Sketcher.Constraint("Horizontal", 78),
    Sketcher.Constraint("Equal", 3, 4),
    Sketcher.Constraint("Equal", 6, 9),
    Sketcher.Constraint("Equal", 11, 13),
    Sketcher.Constraint("Equal", 15, 17),
    Sketcher.Constraint("Equal", 19, 21),
    Sketcher.Constraint("Equal", 23, 25),
    Sketcher.Constraint("Equal", 27, 29),
    Sketcher.Constraint("Equal", 31, 33),
    Sketcher.Constraint("Equal", 35, 37),
    Sketcher.Constraint("Equal", 39, 41),
    Sketcher.Constraint("Equal", 43, 45),
    Sketcher.Constraint("Equal", 47, 49),
    Sketcher.Constraint("Equal", 51, 53),
    Sketcher.Constraint("Equal", 55, 57),
    Sketcher.Constraint("Equal", 59, 61),
    Sketcher.Constraint("Equal", 63, 65),
    Sketcher.Constraint("Equal", 67, 69),
    Sketcher.Constraint("Equal", 71, 73),
    Sketcher.Constraint("Equal", 75, 77),
    Sketcher.Constraint("PointOnObject", 1, 3, -1),
    Sketcher.Constraint("PointOnObject", 4, 3, -1),
    Sketcher.Constraint("PointOnObject", 9, 3, -1),
    Sketcher.Constraint("PointOnObject", 13, 3, -1),
    Sketcher.Constraint("PointOnObject", 17, 3, -1),
    Sketcher.Constraint("PointOnObject", 21, 3, -1),
    Sketcher.Constraint("PointOnObject", 25, 3, -1),
    Sketcher.Constraint("PointOnObject", 29, 3, -1),
    Sketcher.Constraint("PointOnObject", 33, 3, -1),
    Sketcher.Constraint("PointOnObject", 37, 3, -1),
    Sketcher.Constraint("PointOnObject", 41, 3, -1),
    Sketcher.Constraint("PointOnObject", 45, 3, -1),
    Sketcher.Constraint("PointOnObject", 49, 3, -1),
    Sketcher.Constraint("PointOnObject", 53, 3, -1),
    Sketcher.Constraint("PointOnObject", 57, 3, -1),
    Sketcher.Constraint("PointOnObject", 61, 3, -1),
    Sketcher.Constraint("PointOnObject", 65, 3, -1),
    Sketcher.Constraint("PointOnObject", 69, 3, -1),
    Sketcher.Constraint("PointOnObject", 73, 3, -1),
    Sketcher.Constraint("PointOnObject", 77, 3, -1),
    Sketcher.Constraint("Equal", 2, 5),
    Sketcher.Constraint("Equal", 7, 8),
    Sketcher.Constraint("Equal", 10, 12),
    Sketcher.Constraint("Equal", 14, 16),
    Sketcher.Constraint("Equal", 18, 20),
    Sketcher.Constraint("Equal", 22, 24),
    Sketcher.Constraint("Equal", 26, 28),
    Sketcher.Constraint("Equal", 30, 32),
    Sketcher.Constraint("Equal", 34, 36),
    Sketcher.Constraint("Equal", 38, 40),
    Sketcher.Constraint("Equal", 42, 44),
    Sketcher.Constraint("Equal", 46, 48),
    Sketcher.Constraint("Equal", 50, 52),
    Sketcher.Constraint("Equal", 54, 56),
    Sketcher.Constraint("Equal", 58, 60),
    Sketcher.Constraint("Equal", 62, 64),
    Sketcher.Constraint("Equal", 66, 68),
    Sketcher.Constraint("Equal", 70, 72),
    Sketcher.Constraint("Equal", 74, 76),
    Sketcher.Constraint("Radius", 1, Q("0.125 in")),
    Sketcher.Constraint("DistanceX", 0, 2, 0, 1, Q("0.3281 in")),
    Sketcher.Constraint("DistanceX", 1, 3, -1, 1, Q("204.95387 mm")),
    Sketcher.Constraint("DistanceX", 4, 3, -1, 1, Q("229.84587 mm")),
    Sketcher.Constraint("DistanceX", 9, 3, -1, 1, Q("180.06187 mm")),
    Sketcher.Constraint("DistanceX", 13, 3, -1, 1, Q("155.16987 mm")),
    Sketcher.Constraint("DistanceX", 17, 3, -1, 1, Q("130.27787 mm")),
    Sketcher.Constraint("DistanceX", 21, 3, -1, 1, Q("105.38587 mm")),
    Sketcher.Constraint("DistanceX", 25, 3, -1, 1, Q("80.49387 mm")),
    Sketcher.Constraint("DistanceX", 29, 3, -1, 1, Q("55.60187 mm")),
    Sketcher.Constraint("DistanceX", 33, 3, -1, 1, Q("30.70987 mm")),
    Sketcher.Constraint("DistanceX", 37, 3, -1, 1, Q("5.81787 mm")),
    Sketcher.Constraint("DistanceX", -1, 1, 41, 3, Q("19.07413 mm")),
    Sketcher.Constraint("DistanceX", -1, 1, 45, 3, Q("43.96613 mm")),
    Sketcher.Constraint("DistanceX", -1, 1, 49, 3, Q("68.85813 mm")),
    Sketcher.Constraint("DistanceX", -1, 1, 53, 3, Q("93.75013 mm")),
    Sketcher.Constraint("DistanceX", -1, 1, 57, 3, Q("118.64213 mm")),
    Sketcher.Constraint("DistanceX", -1, 1, 61, 3, Q("143.53413 mm")),
    Sketcher.Constraint("DistanceX", -1, 1, 65, 3, Q("168.42613 mm")),
    Sketcher.Constraint("DistanceX", -1, 1, 69, 3, Q("193.31813 mm")),
    Sketcher.Constraint("DistanceX", -1, 1, 73, 3, Q("218.21013 mm")),
    Sketcher.Constraint("DistanceX", -1, 1, 77, 3, Q("243.10213 mm")),
])
pocket1 = body.newObject("PartDesign::Pocket", "Pocket")
pocket1.Profile = sketch2
pocket1.Type = "ThroughAll"

doc.recompute()
